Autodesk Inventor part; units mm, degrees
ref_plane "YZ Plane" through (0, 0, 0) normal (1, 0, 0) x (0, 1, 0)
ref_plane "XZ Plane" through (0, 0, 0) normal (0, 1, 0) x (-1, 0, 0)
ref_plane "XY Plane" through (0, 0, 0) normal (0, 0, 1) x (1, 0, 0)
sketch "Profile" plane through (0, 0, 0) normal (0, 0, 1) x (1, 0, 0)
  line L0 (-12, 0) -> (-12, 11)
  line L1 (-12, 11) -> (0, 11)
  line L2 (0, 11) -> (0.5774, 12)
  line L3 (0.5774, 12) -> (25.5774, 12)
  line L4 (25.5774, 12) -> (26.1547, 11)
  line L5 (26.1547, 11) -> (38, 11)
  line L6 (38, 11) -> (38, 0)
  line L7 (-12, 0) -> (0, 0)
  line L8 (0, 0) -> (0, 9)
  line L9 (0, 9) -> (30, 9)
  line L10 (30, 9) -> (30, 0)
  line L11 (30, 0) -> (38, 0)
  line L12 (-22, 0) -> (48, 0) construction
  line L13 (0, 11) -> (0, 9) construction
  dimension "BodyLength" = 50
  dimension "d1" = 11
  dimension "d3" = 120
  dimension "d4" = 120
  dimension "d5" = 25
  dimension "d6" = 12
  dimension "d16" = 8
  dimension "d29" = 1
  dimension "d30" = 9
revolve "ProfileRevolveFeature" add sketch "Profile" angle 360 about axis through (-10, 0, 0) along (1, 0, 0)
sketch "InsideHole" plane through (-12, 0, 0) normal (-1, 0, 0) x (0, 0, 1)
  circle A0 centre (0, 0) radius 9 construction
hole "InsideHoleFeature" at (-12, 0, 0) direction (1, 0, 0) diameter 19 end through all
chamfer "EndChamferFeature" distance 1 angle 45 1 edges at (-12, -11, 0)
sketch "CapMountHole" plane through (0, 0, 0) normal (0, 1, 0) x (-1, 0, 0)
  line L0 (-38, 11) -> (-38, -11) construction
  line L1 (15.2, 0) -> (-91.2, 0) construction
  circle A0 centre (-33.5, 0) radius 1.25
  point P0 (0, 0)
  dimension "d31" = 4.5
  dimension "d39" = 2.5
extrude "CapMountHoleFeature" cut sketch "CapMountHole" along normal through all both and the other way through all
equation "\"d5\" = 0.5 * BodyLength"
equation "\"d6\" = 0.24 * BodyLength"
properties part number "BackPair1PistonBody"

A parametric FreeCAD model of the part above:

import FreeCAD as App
import Part
import Sketcher
Q = App.Units.Quantity


def edges_at(feature, points):
    """Names of the edges that pass closest to the given points."""
    edges = feature.Shape.Edges
    near = lambda p: min(range(len(edges)), key=lambda i: edges[i].distToShape(Part.Vertex(*p))[0])
    return sorted({f"Edge{near(p) + 1}" for p in points})


def add_polygon(sketch, points):
    """Adds a closed chain of lines whose ends are joined by coincident constraints."""
    first, n = sketch.GeometryCount, len(points)
    for a, b in zip(points, points[1:] + points[:1]):
        sketch.addGeometry(Part.LineSegment(App.Vector(*a, 0), App.Vector(*b, 0)), False)
    for i in range(n):
        sketch.addConstraint(Sketcher.Constraint("Coincident", first + i, 2, first + (i + 1) % n, 1))

doc = App.newDocument("Part")
body = doc.addObject("PartDesign::Body", "Body")

# Sketch on XY plane
sketch1 = body.newObject("Sketcher::SketchObject", "Sketch")
sketch1.AttachmentSupport = (doc.getObject("XY_Plane"), [""])
sketch1.MapMode = "FlatFace"
add_polygon(sketch1, [(-12, 11), (-12, 0), (0, 0), (0, 9), (30, 9), (30, 0), (38, 0), (38, 11), (26.2, 11), (25.6, 12), (0.6, 12), (0, 11)])  # lines 0-11
sketch1.addConstraint(Sketcher.Constraint("Vertical", 0))
sketch1.addConstraint(Sketcher.Constraint("Horizontal", 1))
sketch1.addConstraint(Sketcher.Constraint("Vertical", 2))
sketch1.addConstraint(Sketcher.Constraint("Horizontal", 3))
sketch1.addConstraint(Sketcher.Constraint("Vertical", 4))
sketch1.addConstraint(Sketcher.Constraint("Horizontal", 5))
sketch1.addConstraint(Sketcher.Constraint("Vertical", 6))
sketch1.addConstraint(Sketcher.Constraint("Horizontal", 7))
sketch1.addConstraint(Sketcher.Constraint("Horizontal", 9))
sketch1.addConstraint(Sketcher.Constraint("Horizontal", 11))
sketch1.addConstraint(Sketcher.Constraint("Coincident", 1, 2, -1, 1))
sketch1.addConstraint(Sketcher.Constraint("PointOnObject", 4, 2, -1))
sketch1.addConstraint(Sketcher.Constraint("PointOnObject", 10, 2, -2))
sketch1.addConstraint(Sketcher.Constraint("Horizontal", 7, 2, 10, 2))
sketch1.addConstraint(Sketcher.Constraint("Equal", 8, 10))
sketch1.addConstraint(Sketcher.Constraint("DistanceX", 1, 1, 1, 2, Q("12 mm")))
sketch1.addConstraint(Sketcher.Constraint("DistanceX", 5, 1, 5, 2, Q("8 mm")))
sketch1.addConstraint(Sketcher.Constraint("DistanceX", 9, 2, 9, 1, Q("25 mm")))
sketch1.addConstraint(Sketcher.Constraint("DistanceY", 0, 2, 0, 1, Q("11 mm")))
sketch1.addConstraint(Sketcher.Constraint("DistanceY", 2, 1, 2, 2, Q("9 mm")))
sketch1.addConstraint(Sketcher.Constraint("DistanceY", -1, 1, 8, 2, Q("12 mm")))
sketch1.addConstraint(Sketcher.Constraint("DistanceX", 0, 2, 5, 2, Q("50 mm")))
sketch1.addConstraint(Sketcher.Constraint("DistanceX", 7, 2, 7, 1, Q("11.8453 mm")))
revolution = body.newObject("PartDesign::Revolution", "Revolution")
revolution.Profile = sketch1
revolution.ReferenceAxis = (sketch1, ["H_Axis"])
revolution.Angle = 360

# Sketch on YZ plane
sketch2 = body.newObject("Sketcher::SketchObject", "Sketch001")
sketch2.AttachmentSupport = (doc.getObject("YZ_Plane"), [""])
sketch2.MapMode = "FlatFace"
sketch2.AttachmentOffset = App.Placement(App.Vector(0, 0, -12), App.Rotation())
sketch2.addGeometry(Part.Circle(App.Vector(0, 0, 0), App.Vector(0, 0, 1), 10), False)
sketch2.addConstraint(Sketcher.Constraint("Coincident", 0, 3, -1, 1))
sketch2.addConstraint(Sketcher.Constraint("Diameter", 0, Q("19 mm")))
doc.recompute()
hole = body.newObject("PartDesign::Hole", "Hole")
hole.Profile = sketch2
hole.ThreadType = "None"
hole.Diameter = 19
hole.DepthType = "ThroughAll"
hole.Reversed = True
doc.recompute()

chamfer = body.newObject("PartDesign::Chamfer", "Chamfer")
chamfer.Base = (hole, edges_at(hole, [(-12, -11, 0)]))
chamfer.Size = 1

# Sketch on XZ plane
sketch3 = body.newObject("Sketcher::SketchObject", "Sketch002")
sketch3.AttachmentSupport = (doc.getObject("XZ_Plane"), [""])
sketch3.MapMode = "FlatFace"
sketch3.addGeometry(Part.Circle(App.Vector(33.5, 0, 0), App.Vector(0, 0, 1), 1.2), False)
sketch3.addConstraint(Sketcher.Constraint("PointOnObject", 0, 3, -1))
sketch3.addConstraint(Sketcher.Constraint("Diameter", 0, Q("2.5 mm")))
sketch3.addConstraint(Sketcher.Constraint("DistanceX", -1, 1, 0, 3, Q("33.5 mm")))
pocket1 = body.newObject("PartDesign::Pocket", "Pocket")
pocket1.Profile = sketch3
pocket1.Type = "ThroughAll"
pocket1.Midplane = True

doc.recompute()
